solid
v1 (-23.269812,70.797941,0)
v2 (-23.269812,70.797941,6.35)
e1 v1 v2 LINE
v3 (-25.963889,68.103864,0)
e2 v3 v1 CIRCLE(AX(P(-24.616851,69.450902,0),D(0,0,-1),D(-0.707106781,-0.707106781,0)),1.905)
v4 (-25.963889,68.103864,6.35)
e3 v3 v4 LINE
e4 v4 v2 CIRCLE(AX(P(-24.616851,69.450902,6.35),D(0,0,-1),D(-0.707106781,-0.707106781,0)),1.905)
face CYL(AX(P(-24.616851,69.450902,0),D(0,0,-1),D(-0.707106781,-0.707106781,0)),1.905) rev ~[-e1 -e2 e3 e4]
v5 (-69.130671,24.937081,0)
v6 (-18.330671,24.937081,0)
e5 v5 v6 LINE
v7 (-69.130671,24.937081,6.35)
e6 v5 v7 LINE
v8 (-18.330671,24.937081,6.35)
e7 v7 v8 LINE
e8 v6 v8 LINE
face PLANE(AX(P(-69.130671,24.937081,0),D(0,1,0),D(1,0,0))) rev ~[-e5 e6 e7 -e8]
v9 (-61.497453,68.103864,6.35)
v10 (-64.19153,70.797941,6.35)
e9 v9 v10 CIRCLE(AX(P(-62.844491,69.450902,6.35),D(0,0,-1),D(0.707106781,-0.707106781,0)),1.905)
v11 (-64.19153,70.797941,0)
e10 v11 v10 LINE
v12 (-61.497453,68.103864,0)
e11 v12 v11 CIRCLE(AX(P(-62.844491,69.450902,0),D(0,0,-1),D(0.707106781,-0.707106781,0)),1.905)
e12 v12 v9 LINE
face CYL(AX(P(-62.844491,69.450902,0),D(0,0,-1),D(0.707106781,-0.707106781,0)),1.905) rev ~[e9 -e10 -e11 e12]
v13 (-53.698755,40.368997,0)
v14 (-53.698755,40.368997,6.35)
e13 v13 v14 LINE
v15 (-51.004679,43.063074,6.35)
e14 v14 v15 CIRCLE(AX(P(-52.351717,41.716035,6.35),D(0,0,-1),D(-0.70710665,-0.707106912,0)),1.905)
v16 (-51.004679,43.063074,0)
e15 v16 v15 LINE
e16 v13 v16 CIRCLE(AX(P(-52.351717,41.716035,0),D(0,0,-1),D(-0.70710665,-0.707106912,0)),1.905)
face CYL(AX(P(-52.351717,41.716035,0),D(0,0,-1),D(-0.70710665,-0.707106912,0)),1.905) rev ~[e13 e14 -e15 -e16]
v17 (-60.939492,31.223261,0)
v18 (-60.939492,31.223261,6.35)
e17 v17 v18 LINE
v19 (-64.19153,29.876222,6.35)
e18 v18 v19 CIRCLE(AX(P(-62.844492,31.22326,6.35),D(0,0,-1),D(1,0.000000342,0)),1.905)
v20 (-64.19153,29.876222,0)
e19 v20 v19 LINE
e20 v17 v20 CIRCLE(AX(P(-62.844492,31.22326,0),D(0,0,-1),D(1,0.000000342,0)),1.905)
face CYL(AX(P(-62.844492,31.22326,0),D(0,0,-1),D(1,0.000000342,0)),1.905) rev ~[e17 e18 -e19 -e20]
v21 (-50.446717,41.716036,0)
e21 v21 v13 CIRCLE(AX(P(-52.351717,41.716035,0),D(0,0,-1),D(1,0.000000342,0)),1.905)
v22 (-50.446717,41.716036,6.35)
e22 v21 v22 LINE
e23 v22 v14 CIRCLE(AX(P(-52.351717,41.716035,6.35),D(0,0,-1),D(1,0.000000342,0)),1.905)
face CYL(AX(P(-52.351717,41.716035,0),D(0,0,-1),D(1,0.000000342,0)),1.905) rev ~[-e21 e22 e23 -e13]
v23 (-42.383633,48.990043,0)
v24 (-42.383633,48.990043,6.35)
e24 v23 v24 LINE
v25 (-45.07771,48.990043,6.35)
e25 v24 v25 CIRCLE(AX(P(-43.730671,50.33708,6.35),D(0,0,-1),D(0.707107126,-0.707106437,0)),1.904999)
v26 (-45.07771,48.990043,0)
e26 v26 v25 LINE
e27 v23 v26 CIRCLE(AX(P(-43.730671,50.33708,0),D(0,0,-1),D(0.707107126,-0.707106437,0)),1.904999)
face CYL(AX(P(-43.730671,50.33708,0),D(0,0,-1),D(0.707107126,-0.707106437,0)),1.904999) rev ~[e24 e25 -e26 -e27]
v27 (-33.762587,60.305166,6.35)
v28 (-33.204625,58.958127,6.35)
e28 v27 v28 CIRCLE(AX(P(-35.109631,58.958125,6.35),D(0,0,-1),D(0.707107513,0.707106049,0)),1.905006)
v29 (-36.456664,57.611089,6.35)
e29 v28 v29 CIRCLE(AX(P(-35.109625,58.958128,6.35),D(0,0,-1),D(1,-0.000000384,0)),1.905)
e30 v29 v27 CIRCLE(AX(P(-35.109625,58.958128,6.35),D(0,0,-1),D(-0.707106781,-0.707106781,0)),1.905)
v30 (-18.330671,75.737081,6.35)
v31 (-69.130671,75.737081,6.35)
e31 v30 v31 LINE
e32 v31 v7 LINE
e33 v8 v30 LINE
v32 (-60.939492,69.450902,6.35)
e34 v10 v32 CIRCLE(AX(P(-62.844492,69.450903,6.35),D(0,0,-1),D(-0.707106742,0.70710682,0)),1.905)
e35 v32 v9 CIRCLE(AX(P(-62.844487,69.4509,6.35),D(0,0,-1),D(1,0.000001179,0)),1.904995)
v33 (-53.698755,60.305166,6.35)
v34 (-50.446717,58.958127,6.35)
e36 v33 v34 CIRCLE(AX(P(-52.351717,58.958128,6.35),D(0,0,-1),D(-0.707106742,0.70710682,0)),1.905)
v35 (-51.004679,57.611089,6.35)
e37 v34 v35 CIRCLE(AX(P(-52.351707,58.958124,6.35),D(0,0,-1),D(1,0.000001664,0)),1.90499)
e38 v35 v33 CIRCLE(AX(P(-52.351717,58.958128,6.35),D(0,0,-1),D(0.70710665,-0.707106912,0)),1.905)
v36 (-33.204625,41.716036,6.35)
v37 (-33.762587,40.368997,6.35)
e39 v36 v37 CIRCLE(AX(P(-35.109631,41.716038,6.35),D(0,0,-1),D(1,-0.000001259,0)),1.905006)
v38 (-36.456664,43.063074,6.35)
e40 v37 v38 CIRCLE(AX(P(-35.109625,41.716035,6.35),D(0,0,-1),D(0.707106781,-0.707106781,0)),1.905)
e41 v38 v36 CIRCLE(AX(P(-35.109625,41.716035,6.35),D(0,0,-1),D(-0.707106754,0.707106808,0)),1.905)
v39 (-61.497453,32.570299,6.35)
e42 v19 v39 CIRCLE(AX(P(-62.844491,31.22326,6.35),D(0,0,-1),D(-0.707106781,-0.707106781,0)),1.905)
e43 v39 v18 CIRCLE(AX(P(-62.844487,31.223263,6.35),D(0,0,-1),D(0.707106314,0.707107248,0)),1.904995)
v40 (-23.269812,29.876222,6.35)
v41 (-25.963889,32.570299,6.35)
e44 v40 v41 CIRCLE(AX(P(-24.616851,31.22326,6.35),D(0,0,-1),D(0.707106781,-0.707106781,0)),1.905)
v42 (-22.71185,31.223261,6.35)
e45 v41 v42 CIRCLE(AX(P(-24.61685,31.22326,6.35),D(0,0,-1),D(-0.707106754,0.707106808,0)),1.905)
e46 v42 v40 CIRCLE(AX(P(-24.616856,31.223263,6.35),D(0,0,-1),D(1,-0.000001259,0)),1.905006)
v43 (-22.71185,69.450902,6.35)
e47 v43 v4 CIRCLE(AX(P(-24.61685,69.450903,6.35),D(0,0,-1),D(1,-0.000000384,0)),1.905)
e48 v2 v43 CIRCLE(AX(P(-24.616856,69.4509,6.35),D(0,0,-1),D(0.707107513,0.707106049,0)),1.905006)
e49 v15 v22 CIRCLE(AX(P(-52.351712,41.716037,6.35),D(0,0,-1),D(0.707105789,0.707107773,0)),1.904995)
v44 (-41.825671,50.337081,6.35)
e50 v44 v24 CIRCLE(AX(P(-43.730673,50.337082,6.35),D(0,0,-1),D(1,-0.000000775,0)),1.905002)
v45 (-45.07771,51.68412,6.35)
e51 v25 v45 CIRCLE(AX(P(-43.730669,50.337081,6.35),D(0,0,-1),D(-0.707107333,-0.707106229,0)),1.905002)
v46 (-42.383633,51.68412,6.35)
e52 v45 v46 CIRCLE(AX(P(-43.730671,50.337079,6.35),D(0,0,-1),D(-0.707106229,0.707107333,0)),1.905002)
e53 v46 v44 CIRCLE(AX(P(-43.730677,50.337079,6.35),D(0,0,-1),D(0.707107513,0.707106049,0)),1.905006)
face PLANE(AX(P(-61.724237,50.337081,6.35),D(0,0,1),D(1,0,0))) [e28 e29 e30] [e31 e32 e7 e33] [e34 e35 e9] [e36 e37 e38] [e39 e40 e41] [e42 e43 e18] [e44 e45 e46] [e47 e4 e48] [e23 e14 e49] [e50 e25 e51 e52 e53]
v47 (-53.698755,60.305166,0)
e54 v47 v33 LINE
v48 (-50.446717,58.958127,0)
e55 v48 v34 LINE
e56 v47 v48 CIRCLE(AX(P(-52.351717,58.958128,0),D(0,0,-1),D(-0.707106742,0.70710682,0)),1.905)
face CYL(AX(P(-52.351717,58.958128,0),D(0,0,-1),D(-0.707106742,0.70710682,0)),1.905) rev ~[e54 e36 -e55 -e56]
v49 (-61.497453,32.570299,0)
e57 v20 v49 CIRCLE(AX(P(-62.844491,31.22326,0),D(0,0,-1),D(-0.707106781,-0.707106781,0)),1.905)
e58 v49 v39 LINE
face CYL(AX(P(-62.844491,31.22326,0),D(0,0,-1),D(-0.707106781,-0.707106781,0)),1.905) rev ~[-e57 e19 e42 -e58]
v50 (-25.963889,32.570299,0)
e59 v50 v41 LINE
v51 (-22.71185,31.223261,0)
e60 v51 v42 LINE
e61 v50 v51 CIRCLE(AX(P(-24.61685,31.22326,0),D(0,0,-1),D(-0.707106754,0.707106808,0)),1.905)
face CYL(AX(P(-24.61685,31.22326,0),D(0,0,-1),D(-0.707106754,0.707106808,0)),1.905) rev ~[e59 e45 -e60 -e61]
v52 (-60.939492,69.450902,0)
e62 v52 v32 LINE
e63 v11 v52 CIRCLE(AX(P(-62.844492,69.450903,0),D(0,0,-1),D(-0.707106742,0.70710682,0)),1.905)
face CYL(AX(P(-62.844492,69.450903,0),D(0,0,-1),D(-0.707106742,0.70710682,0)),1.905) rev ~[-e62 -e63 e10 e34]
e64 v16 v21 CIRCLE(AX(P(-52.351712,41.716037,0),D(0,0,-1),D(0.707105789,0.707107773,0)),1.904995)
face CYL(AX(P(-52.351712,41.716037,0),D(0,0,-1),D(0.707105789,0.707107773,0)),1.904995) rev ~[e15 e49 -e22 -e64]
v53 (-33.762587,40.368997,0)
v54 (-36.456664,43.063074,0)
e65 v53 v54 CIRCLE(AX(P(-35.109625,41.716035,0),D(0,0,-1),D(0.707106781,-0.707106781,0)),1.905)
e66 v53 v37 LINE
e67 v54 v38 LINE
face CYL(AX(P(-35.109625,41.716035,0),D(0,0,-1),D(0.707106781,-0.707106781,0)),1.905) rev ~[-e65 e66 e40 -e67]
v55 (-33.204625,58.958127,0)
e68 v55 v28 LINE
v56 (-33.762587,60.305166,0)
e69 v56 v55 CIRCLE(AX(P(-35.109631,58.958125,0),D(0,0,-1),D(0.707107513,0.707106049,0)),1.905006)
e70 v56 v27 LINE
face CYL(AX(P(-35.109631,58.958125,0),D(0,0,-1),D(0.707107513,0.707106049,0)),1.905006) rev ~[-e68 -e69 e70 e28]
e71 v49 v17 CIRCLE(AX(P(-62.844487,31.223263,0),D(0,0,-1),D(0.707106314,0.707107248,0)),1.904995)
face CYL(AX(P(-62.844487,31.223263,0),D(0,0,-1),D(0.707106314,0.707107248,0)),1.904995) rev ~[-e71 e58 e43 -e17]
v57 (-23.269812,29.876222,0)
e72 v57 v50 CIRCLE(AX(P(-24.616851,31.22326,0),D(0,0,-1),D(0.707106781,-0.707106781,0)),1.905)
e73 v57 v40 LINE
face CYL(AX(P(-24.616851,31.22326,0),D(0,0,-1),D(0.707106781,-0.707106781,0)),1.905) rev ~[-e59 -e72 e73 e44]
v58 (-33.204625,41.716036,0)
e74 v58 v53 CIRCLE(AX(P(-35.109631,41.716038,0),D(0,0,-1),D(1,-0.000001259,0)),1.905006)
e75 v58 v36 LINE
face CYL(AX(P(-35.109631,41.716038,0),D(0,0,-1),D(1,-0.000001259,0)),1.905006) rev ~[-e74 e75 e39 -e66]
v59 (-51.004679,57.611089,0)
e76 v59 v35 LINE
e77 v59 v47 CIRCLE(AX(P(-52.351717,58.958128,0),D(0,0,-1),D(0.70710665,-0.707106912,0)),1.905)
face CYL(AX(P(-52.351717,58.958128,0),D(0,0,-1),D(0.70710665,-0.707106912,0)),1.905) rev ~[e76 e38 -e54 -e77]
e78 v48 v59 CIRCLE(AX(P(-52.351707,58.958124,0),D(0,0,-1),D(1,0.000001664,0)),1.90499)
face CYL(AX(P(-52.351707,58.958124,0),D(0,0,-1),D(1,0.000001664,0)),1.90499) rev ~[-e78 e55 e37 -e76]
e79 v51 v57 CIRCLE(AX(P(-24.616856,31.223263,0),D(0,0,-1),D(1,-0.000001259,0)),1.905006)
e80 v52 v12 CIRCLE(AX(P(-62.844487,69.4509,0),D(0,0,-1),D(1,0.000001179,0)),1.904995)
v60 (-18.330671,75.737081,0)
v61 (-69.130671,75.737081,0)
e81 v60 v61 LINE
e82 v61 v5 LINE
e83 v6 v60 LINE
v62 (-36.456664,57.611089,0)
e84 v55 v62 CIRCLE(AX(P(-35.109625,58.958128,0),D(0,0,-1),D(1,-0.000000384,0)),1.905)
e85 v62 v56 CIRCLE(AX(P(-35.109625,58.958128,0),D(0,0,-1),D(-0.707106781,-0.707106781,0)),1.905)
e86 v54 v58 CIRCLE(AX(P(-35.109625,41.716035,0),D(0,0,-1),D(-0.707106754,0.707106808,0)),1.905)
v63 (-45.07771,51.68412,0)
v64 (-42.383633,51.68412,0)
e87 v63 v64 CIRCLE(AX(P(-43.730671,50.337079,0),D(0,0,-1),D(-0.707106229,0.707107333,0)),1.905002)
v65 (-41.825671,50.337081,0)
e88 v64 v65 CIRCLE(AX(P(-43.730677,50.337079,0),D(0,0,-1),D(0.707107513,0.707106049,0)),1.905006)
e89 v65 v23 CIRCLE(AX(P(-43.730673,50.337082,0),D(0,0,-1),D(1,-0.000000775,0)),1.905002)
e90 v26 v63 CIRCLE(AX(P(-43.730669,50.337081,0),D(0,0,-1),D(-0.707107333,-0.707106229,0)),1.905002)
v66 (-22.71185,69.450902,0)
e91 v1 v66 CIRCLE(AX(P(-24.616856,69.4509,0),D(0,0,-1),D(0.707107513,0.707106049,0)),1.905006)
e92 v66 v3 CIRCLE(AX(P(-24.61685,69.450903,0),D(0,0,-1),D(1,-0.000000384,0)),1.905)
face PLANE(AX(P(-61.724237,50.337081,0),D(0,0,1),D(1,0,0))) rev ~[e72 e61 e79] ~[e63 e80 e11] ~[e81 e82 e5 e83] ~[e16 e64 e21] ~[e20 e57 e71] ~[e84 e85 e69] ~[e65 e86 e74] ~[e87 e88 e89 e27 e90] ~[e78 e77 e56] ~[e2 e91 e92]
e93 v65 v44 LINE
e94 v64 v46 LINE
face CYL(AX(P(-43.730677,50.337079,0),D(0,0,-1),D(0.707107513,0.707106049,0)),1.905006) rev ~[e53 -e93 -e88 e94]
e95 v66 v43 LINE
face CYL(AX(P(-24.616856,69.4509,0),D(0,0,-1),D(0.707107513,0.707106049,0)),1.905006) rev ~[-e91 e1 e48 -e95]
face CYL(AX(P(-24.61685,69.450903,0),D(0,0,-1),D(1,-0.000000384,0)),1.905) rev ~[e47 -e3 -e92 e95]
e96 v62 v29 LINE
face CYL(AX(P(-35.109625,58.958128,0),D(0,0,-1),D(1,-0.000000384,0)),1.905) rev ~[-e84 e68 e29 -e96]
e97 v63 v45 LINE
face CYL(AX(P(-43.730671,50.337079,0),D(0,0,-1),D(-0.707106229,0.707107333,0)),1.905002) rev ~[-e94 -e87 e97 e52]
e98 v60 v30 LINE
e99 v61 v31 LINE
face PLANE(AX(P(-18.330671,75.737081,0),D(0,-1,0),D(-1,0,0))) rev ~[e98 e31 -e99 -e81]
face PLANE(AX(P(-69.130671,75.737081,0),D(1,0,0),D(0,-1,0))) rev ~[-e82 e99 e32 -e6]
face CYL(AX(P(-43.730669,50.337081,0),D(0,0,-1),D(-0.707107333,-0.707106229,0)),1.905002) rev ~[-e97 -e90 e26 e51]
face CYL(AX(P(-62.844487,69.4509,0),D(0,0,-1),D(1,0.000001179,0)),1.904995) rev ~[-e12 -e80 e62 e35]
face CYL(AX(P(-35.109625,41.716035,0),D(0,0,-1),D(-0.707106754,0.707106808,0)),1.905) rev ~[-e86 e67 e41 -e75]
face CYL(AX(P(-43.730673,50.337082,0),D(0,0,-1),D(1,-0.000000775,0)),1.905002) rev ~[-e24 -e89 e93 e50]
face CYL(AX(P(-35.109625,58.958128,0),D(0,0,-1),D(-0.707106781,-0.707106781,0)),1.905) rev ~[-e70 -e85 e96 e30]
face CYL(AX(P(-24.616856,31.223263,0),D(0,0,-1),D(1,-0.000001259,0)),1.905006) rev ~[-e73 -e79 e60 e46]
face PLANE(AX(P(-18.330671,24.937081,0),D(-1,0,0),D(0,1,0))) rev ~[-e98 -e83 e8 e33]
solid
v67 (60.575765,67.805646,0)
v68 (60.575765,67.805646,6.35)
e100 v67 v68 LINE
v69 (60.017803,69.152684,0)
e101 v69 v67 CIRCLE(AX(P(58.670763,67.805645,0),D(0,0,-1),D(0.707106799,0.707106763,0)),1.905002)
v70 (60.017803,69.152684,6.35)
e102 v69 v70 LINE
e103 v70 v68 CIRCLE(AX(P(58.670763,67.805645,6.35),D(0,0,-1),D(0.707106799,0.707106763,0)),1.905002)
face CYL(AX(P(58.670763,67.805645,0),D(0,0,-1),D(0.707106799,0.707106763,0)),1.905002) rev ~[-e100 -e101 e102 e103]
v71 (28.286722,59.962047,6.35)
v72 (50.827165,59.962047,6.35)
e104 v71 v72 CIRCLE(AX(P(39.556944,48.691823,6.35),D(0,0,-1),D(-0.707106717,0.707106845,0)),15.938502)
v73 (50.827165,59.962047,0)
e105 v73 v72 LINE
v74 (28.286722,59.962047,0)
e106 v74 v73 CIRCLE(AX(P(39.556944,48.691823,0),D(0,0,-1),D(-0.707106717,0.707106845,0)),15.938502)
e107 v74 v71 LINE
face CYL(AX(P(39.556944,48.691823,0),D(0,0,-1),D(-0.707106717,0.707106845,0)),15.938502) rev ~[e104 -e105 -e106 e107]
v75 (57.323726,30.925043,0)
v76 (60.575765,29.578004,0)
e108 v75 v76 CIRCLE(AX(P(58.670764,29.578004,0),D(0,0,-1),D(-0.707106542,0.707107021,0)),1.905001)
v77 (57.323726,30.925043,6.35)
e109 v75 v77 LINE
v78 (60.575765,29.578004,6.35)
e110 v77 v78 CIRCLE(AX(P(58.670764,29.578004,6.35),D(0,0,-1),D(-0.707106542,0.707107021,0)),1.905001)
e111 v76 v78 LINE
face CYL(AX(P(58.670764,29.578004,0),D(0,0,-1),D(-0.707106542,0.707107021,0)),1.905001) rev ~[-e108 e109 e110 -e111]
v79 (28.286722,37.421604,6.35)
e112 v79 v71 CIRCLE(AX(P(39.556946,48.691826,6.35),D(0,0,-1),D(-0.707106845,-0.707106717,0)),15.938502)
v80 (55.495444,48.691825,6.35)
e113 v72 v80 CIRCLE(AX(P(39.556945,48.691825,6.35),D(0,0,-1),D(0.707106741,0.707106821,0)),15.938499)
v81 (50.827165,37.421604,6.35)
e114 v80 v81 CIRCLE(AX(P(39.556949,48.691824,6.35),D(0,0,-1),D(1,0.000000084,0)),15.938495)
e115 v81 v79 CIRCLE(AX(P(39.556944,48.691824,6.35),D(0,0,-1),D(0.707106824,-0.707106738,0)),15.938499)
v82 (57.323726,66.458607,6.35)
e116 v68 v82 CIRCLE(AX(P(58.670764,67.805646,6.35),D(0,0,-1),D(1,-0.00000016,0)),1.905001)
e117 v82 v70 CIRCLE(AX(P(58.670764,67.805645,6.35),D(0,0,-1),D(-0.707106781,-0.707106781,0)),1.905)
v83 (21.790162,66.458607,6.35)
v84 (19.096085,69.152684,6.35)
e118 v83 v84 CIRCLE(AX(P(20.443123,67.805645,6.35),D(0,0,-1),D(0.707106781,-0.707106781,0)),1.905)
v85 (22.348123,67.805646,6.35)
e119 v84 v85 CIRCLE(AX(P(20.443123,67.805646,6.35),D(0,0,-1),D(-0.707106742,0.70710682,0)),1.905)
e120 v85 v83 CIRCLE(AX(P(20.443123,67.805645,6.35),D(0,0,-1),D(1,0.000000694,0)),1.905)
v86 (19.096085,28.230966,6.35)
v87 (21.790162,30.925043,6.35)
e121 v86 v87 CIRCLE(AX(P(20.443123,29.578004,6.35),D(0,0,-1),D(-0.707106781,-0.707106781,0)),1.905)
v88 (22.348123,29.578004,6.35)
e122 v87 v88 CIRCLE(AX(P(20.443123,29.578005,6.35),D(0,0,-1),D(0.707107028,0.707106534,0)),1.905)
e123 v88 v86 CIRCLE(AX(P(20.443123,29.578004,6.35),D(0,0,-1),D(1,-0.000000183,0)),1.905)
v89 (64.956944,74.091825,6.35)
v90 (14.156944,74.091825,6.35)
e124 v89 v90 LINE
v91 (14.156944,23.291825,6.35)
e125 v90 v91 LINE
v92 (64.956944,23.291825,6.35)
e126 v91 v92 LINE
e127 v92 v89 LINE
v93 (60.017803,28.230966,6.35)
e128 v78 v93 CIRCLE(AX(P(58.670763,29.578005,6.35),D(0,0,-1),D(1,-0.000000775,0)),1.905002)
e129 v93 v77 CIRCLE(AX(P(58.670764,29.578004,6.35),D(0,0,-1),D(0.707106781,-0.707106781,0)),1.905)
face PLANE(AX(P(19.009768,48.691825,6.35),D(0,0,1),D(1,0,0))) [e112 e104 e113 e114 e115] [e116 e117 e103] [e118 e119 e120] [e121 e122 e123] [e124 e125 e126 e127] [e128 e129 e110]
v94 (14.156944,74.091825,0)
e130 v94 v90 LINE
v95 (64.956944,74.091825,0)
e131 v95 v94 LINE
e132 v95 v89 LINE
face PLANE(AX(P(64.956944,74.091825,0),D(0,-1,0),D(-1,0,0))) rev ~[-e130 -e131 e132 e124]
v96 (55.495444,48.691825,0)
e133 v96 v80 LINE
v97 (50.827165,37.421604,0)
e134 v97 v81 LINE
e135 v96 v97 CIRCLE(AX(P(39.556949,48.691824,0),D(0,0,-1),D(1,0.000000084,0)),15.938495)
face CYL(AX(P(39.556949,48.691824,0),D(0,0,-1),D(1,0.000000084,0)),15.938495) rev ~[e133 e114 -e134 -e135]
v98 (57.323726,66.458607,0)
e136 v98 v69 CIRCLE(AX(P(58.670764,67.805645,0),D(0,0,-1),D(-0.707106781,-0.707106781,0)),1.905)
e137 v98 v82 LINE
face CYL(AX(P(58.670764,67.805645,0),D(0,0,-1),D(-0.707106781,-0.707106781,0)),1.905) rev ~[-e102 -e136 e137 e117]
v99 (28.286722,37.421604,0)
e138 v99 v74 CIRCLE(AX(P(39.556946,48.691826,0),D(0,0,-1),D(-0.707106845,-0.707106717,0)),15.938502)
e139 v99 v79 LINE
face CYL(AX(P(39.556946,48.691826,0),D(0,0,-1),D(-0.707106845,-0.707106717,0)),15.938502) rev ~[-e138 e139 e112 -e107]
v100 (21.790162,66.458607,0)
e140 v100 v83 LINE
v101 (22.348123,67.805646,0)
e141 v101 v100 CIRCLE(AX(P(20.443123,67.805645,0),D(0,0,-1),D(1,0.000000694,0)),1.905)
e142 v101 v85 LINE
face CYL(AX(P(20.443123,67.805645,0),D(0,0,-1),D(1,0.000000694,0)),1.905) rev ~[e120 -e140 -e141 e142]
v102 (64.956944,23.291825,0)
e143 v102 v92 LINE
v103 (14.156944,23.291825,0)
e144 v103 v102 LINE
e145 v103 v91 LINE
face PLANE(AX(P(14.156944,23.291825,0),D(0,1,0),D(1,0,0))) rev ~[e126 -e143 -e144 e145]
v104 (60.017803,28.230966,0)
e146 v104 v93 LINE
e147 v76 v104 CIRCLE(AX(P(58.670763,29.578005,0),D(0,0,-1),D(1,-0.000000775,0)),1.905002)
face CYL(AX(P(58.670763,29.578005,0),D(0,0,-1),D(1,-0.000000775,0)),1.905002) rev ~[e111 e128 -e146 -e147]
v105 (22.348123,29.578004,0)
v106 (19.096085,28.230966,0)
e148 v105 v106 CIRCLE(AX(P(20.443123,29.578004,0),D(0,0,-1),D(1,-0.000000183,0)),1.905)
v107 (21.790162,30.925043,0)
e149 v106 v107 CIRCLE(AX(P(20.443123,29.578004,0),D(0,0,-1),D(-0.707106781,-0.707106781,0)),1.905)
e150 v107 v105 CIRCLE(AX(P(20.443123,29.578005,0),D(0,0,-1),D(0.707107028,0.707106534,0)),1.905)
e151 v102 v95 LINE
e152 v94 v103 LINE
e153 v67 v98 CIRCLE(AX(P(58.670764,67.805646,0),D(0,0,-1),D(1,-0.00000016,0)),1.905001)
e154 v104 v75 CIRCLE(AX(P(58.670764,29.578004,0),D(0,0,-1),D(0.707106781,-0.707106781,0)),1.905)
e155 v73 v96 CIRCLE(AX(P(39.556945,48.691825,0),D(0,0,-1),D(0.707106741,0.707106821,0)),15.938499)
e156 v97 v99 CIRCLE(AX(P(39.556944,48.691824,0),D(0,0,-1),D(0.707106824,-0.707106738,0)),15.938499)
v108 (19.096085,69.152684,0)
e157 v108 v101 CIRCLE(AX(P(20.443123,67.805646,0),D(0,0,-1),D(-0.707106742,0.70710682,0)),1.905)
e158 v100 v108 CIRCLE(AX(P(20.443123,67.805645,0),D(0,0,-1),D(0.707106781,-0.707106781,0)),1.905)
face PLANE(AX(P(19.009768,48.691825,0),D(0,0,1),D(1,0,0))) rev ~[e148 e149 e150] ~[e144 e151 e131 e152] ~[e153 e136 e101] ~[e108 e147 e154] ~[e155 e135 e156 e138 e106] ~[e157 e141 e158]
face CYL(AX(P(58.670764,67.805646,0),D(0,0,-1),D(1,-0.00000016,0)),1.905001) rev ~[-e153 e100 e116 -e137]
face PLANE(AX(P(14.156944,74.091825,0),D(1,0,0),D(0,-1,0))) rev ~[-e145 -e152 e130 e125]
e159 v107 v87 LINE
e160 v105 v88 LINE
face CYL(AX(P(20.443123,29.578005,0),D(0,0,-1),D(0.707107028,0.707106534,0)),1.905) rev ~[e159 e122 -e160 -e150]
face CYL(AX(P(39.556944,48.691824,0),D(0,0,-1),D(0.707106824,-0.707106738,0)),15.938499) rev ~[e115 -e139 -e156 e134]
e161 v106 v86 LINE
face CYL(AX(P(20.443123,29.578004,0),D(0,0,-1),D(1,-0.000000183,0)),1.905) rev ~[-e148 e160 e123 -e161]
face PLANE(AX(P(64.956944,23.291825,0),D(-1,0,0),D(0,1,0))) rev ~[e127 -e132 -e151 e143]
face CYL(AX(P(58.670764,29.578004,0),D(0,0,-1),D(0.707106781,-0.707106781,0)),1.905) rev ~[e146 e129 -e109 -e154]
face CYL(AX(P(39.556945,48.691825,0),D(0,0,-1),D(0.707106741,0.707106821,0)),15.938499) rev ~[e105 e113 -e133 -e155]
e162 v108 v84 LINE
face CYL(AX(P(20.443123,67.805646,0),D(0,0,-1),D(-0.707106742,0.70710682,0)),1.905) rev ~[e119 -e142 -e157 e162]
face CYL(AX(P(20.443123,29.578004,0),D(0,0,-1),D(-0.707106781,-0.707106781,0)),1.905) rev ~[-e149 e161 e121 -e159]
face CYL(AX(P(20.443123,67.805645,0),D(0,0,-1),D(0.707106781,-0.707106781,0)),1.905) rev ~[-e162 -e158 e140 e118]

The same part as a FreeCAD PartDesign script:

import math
import FreeCAD as App
import Part
import Sketcher
Q = App.Units.Quantity

doc = App.newDocument("Part")
params = doc.addObject("Spreadsheet::Sheet", "Params")
for row, (alias, value) in enumerate([
    ("sketch1_width", "2 in"),
    ("sketch1_radius", "0.075 in"),
    ("pad1_length", "0.25 in"),
    ("sketch2_width", "2 in"),
    ("sketch2_radius", "0.075 in"),
    ("pad2_length", "0.25 in"),
], start=1):
    params.set(f"A{row}", alias)
    params.set(f"B{row}", "=" + value)
    params.setAlias(f"B{row}", alias)

body = doc.addObject("PartDesign::Body", "Body")

# Sketch on XY plane
sketch1 = doc.addObject("Sketcher::SketchObject", "Sketch")
body.addObject(sketch1)
sketch1.AttachmentSupport = (doc.XY_Plane, [""])
sketch1.MapMode = "FlatFace"
sketch1.addGeometry(Part.LineSegment(App.Vector(-69.130671, 75.737081, 0), App.Vector(-69.130671, 24.937081, 0)), False)
sketch1.addGeometry(Part.LineSegment(App.Vector(-69.130671, 24.937081, 0), App.Vector(-18.330671, 24.937081, 0)), False)
sketch1.addGeometry(Part.LineSegment(App.Vector(-18.330671, 24.937081, 0), App.Vector(-18.330671, 75.737081, 0)), False)
sketch1.addGeometry(Part.LineSegment(App.Vector(-18.330671, 75.737081, 0), App.Vector(-69.130671, 75.737081, 0)), False)
sketch1.addGeometry(Part.ArcOfCircle(Part.Circle(App.Vector(-62.844491, 31.22326, 0), App.Vector(0, 0, 1), 1.905), math.radians(45), math.radians(225)), False)
sketch1.addGeometry(Part.ArcOfCircle(Part.Circle(App.Vector(-62.844487, 31.223263, 0), App.Vector(0, 0, 1), 1.904995), math.radians(-0.000068), math.radians(45.000038)), False)
sketch1.addGeometry(Part.ArcOfCircle(Part.Circle(App.Vector(-62.844492, 31.22326, 0), App.Vector(0, 0, 1), 1.905), math.radians(-134.999997), math.radians(0.00002)), False)
sketch1.addGeometry(Part.ArcOfCircle(Part.Circle(App.Vector(-52.351717, 41.716035, 0), App.Vector(0, 0, 1), 1.905), math.radians(45.000011), math.radians(225.000011)), False)
sketch1.addGeometry(Part.ArcOfCircle(Part.Circle(App.Vector(-52.351712, 41.716037, 0), App.Vector(0, 0, 1), 1.904995), math.radians(-0.000037), math.radians(45.00008)), False)
sketch1.addGeometry(Part.ArcOfCircle(Part.Circle(App.Vector(-52.351717, 41.716035, 0), App.Vector(0, 0, 1), 1.905), math.radians(-134.999997), math.radians(0.00002)), False)
sketch1.addGeometry(Part.ArcOfCircle(Part.Circle(App.Vector(-43.730669, 50.337081, 0), App.Vector(0, 0, 1), 1.905002), math.radians(135.000045), math.radians(224.999955)), False)
sketch1.addGeometry(Part.ArcOfCircle(Part.Circle(App.Vector(-43.730671, 50.337079, 0), App.Vector(0, 0, 1), 1.905002), math.radians(45.000045), math.radians(134.999955)), False)
sketch1.addGeometry(Part.ArcOfCircle(Part.Circle(App.Vector(-43.730677, 50.337079, 0), App.Vector(0, 0, 1), 1.905006), math.radians(0.000072), math.radians(44.999941)), False)
sketch1.addGeometry(Part.ArcOfCircle(Part.Circle(App.Vector(-43.730673, 50.337082, 0), App.Vector(0, 0, 1), 1.905002), math.radians(-44.999999), math.radians(-0.000044)), False)
sketch1.addGeometry(Part.ArcOfCircle(Part.Circle(App.Vector(-43.730671, 50.33708, 0), App.Vector(0, 0, 1), 1.904999), math.radians(-135.000028), math.radians(-44.999972)), False)
sketch1.addGeometry(Part.ArcOfCircle(Part.Circle(App.Vector(-35.109625, 41.716035, 0), App.Vector(0, 0, 1), 1.905), math.radians(0.000022), math.radians(134.999998)), False)
sketch1.addGeometry(Part.ArcOfCircle(Part.Circle(App.Vector(-35.109631, 41.716038, 0), App.Vector(0, 0, 1), 1.905006), math.radians(-44.999941), math.radians(-0.000072)), False)
sketch1.addGeometry(Part.ArcOfCircle(Part.Circle(App.Vector(-35.109625, 41.716035, 0), App.Vector(0, 0, 1), 1.905), math.radians(135), math.radians(315)), False)
sketch1.addGeometry(Part.ArcOfCircle(Part.Circle(App.Vector(-24.61685, 31.22326, 0), App.Vector(0, 0, 1), 1.905), math.radians(0.000022), math.radians(134.999998)), False)
sketch1.addGeometry(Part.ArcOfCircle(Part.Circle(App.Vector(-24.616856, 31.223263, 0), App.Vector(0, 0, 1), 1.905006), math.radians(-44.999941), math.radians(-0.000072)), False)
sketch1.addGeometry(Part.ArcOfCircle(Part.Circle(App.Vector(-24.616851, 31.22326, 0), App.Vector(0, 0, 1), 1.905), math.radians(135), math.radians(315)), False)
sketch1.addGeometry(Part.ArcOfCircle(Part.Circle(App.Vector(-35.109625, 58.958128, 0), App.Vector(0, 0, 1), 1.905), math.radians(45), math.radians(225)), False)
sketch1.addGeometry(Part.ArcOfCircle(Part.Circle(App.Vector(-35.109631, 58.958125, 0), App.Vector(0, 0, 1), 1.905006), math.radians(0.000072), math.radians(44.999941)), False)
sketch1.addGeometry(Part.ArcOfCircle(Part.Circle(App.Vector(-35.109625, 58.958128, 0), App.Vector(0, 0, 1), 1.905), math.radians(-134.999998), math.radians(-0.000022)), False)
sketch1.addGeometry(Part.ArcOfCircle(Part.Circle(App.Vector(-24.616851, 69.450902, 0), App.Vector(0, 0, 1), 1.905), math.radians(45), math.radians(225)), False)
sketch1.addGeometry(Part.ArcOfCircle(Part.Circle(App.Vector(-24.616856, 69.4509, 0), App.Vector(0, 0, 1), 1.905006), math.radians(0.000072), math.radians(44.999941)), False)
sketch1.addGeometry(Part.ArcOfCircle(Part.Circle(App.Vector(-24.61685, 69.450903, 0), App.Vector(0, 0, 1), 1.905), math.radians(-134.999998), math.radians(-0.000022)), False)
sketch1.addGeometry(Part.ArcOfCircle(Part.Circle(App.Vector(-52.351717, 58.958128, 0), App.Vector(0, 0, 1), 1.905), math.radians(134.999989), math.radians(314.999989)), False)
sketch1.addGeometry(Part.ArcOfCircle(Part.Circle(App.Vector(-52.351717, 58.958128, 0), App.Vector(0, 0, 1), 1.905), math.radians(-0.00002), math.radians(134.999997)), False)
sketch1.addGeometry(Part.ArcOfCircle(Part.Circle(App.Vector(-52.351707, 58.958124, 0), App.Vector(0, 0, 1), 1.90499), math.radians(-45.000138), math.radians(0.000095)), False)
sketch1.addGeometry(Part.ArcOfCircle(Part.Circle(App.Vector(-62.844491, 69.450902, 0), App.Vector(0, 0, 1), 1.905), math.radians(135), math.radians(315)), False)
sketch1.addGeometry(Part.ArcOfCircle(Part.Circle(App.Vector(-62.844492, 69.450903, 0), App.Vector(0, 0, 1), 1.905), math.radians(-0.00002), math.radians(134.999997)), False)
sketch1.addGeometry(Part.ArcOfCircle(Part.Circle(App.Vector(-62.844487, 69.4509, 0), App.Vector(0, 0, 1), 1.904995), math.radians(-45.000038), math.radians(0.000068)), False)
sketch1.addConstraint(Sketcher.Constraint("Coincident", 0, 2, 1, 1))
sketch1.addConstraint(Sketcher.Constraint("Coincident", 1, 2, 2, 1))
sketch1.addConstraint(Sketcher.Constraint("Coincident", 2, 2, 3, 1))
sketch1.addConstraint(Sketcher.Constraint("Coincident", 3, 2, 0, 1))
sketch1.addConstraint(Sketcher.Constraint("Tangent", 4, 1, 5, 2))
sketch1.addConstraint(Sketcher.Constraint("Tangent", 5, 1, 6, 2))
sketch1.addConstraint(Sketcher.Constraint("Tangent", 6, 1, 4, 2))
sketch1.addConstraint(Sketcher.Constraint("Tangent", 7, 1, 8, 2))
sketch1.addConstraint(Sketcher.Constraint("Tangent", 8, 1, 9, 2))
sketch1.addConstraint(Sketcher.Constraint("Tangent", 9, 1, 7, 2))
sketch1.addConstraint(Sketcher.Constraint("Tangent", 10, 1, 11, 2))
sketch1.addConstraint(Sketcher.Constraint("Tangent", 11, 1, 12, 2))
sketch1.addConstraint(Sketcher.Constraint("Coincident", 12, 1, 13, 2))
sketch1.addConstraint(Sketcher.Constraint("Tangent", 13, 1, 14, 2))
sketch1.addConstraint(Sketcher.Constraint("Tangent", 14, 1, 10, 2))
sketch1.addConstraint(Sketcher.Constraint("Tangent", 15, 1, 16, 2))
sketch1.addConstraint(Sketcher.Constraint("Tangent", 16, 1, 17, 2))
sketch1.addConstraint(Sketcher.Constraint("Tangent", 17, 1, 15, 2))
sketch1.addConstraint(Sketcher.Constraint("Tangent", 18, 1, 19, 2))
sketch1.addConstraint(Sketcher.Constraint("Tangent", 19, 1, 20, 2))
sketch1.addConstraint(Sketcher.Constraint("Tangent", 20, 1, 18, 2))
sketch1.addConstraint(Sketcher.Constraint("Tangent", 21, 1, 22, 2))
sketch1.addConstraint(Sketcher.Constraint("Tangent", 22, 1, 23, 2))
sketch1.addConstraint(Sketcher.Constraint("Tangent", 23, 1, 21, 2))
sketch1.addConstraint(Sketcher.Constraint("Tangent", 24, 1, 25, 2))
sketch1.addConstraint(Sketcher.Constraint("Tangent", 25, 1, 26, 2))
sketch1.addConstraint(Sketcher.Constraint("Tangent", 26, 1, 24, 2))
sketch1.addConstraint(Sketcher.Constraint("Tangent", 27, 1, 28, 2))
sketch1.addConstraint(Sketcher.Constraint("Coincident", 28, 1, 29, 2))
sketch1.addConstraint(Sketcher.Constraint("Coincident", 29, 1, 27, 2))
sketch1.addConstraint(Sketcher.Constraint("Tangent", 30, 1, 31, 2))
sketch1.addConstraint(Sketcher.Constraint("Tangent", 31, 1, 32, 2))
sketch1.addConstraint(Sketcher.Constraint("Tangent", 32, 1, 30, 2))
sketch1.addConstraint(Sketcher.Constraint("Vertical", 0))
sketch1.addConstraint(Sketcher.Constraint("Horizontal", 1))
sketch1.addConstraint(Sketcher.Constraint("Vertical", 2))
sketch1.addConstraint(Sketcher.Constraint("Horizontal", 3))
sketch1.addConstraint(Sketcher.Constraint("Coincident", 12, 3, 10, 3))
sketch1.addConstraint(Sketcher.Constraint("Equal", 6, 7))
sketch1.addConstraint(Sketcher.Constraint("Equal", 9, 10))
sketch1.addConstraint(Sketcher.Constraint("Equal", 11, 13))
sketch1.addConstraint(Sketcher.Constraint("Equal", 14, 15))
sketch1.addConstraint(Sketcher.Constraint("Equal", 17, 18))
sketch1.addConstraint(Sketcher.Constraint("Equal", 20, 21))
sketch1.addConstraint(Sketcher.Constraint("Equal", 23, 24))
sketch1.addConstraint(Sketcher.Constraint("Equal", 26, 27))
sketch1.addConstraint(Sketcher.Constraint("Equal", 27, 28))
sketch1.addConstraint(Sketcher.Constraint("Equal", 28, 30))
sketch1.addConstraint(Sketcher.Constraint("Horizontal", 9, 3, 15, 3))
sketch1.addConstraint(Sketcher.Constraint("Horizontal", 6, 3, 18, 3))
sketch1.addConstraint(Sketcher.Constraint("Horizontal", 23, 3, 27, 3))
sketch1.addConstraint(Sketcher.Constraint("Horizontal", 22, 3, 29, 3))
sketch1.addConstraint(Sketcher.Constraint("Horizontal", 26, 3, 30, 3))
sketch1.addConstraint(Sketcher.Constraint("Horizontal", 20, 3, 5, 1))
sketch1.addConstraint(Sketcher.Constraint("Horizontal", 17, 3, 8, 1))
sketch1.addConstraint(Sketcher.Constraint("Horizontal", 10, 1, 11, 1))
sketch1.addConstraint(Sketcher.Constraint("Horizontal", 14, 3, 12, 1))
sketch1.addConstraint(Sketcher.Constraint("Horizontal", 13, 1, 14, 1))
sketch1.addConstraint(Sketcher.Constraint("Horizontal", 8, 1, 15, 1))
sketch1.addConstraint(Sketcher.Constraint("Horizontal", 9, 1, 16, 1))
sketch1.addConstraint(Sketcher.Constraint("Horizontal", 7, 1, 17, 1))
sketch1.addConstraint(Sketcher.Constraint("Horizontal", 5, 1, 18, 1))
sketch1.addConstraint(Sketcher.Constraint("Horizontal", 6, 1, 19, 1))
sketch1.addConstraint(Sketcher.Constraint("Horizontal", 4, 1, 20, 1))
sketch1.addConstraint(Sketcher.Constraint("Horizontal", 28, 3, 22, 1))
sketch1.addConstraint(Sketcher.Constraint("Horizontal", 31, 3, 25, 1))
sketch1.addConstraint(Sketcher.Constraint("Horizontal", 21, 1, 27, 1))
sketch1.addConstraint(Sketcher.Constraint("Horizontal", 22, 1, 28, 1))
sketch1.addConstraint(Sketcher.Constraint("Horizontal", 23, 1, 29, 1))
sketch1.addConstraint(Sketcher.Constraint("Horizontal", 24, 1, 30, 1))
sketch1.addConstraint(Sketcher.Constraint("Horizontal", 25, 1, 31, 1))
sketch1.addConstraint(Sketcher.Constraint("Horizontal", 26, 1, 32, 1))
sketch1.addConstraint(Sketcher.Constraint("Vertical", 17, 3, 21, 3))
sketch1.addConstraint(Sketcher.Constraint("Vertical", 20, 3, 24, 3))
sketch1.addConstraint(Sketcher.Constraint("Vertical", 9, 3, 27, 3))
sketch1.addConstraint(Sketcher.Constraint("Vertical", 6, 3, 30, 3))
sketch1.addConstraint(Sketcher.Constraint("Vertical", 11, 1, 13, 1))
sketch1.addConstraint(Sketcher.Constraint("Vertical", 16, 1, 21, 1))
sketch1.addConstraint(Sketcher.Constraint("Vertical", 17, 1, 23, 1))
sketch1.addConstraint(Sketcher.Constraint("Vertical", 19, 1, 24, 1))
sketch1.addConstraint(Sketcher.Constraint("Vertical", 20, 1, 26, 1))
sketch1.addConstraint(Sketcher.Constraint("Equal", 3, 0))
sketch1.addConstraint(Sketcher.Constraint("DistanceX", 1, 1, 1, 2, Q("2 in")))
sketch1.addConstraint(Sketcher.Constraint("Radius", 4, Q("0.075 in")))
sketch1.addConstraint(Sketcher.Constraint("DistanceY", -1, 1, 25, 3, 69.4509))
sketch1.addConstraint(Sketcher.Constraint("DistanceY", -1, 1, 4, 1, 32.570299))
sketch1.addConstraint(Sketcher.Constraint("DistanceX", 4, 3, -1, 1, 62.844491))
sketch1.addConstraint(Sketcher.Constraint("DistanceY", -1, 1, 4, 3, 31.22326))
sketch1.addConstraint(Sketcher.Constraint("DistanceX", 8, 3, -1, 1, 52.351712))
sketch1.addConstraint(Sketcher.Constraint("DistanceX", 10, 3, -1, 1, 43.730669))
sketch1.addConstraint(Sketcher.Constraint("DistanceY", -1, 1, 10, 3, 50.337081))
sketch1.addConstraint(Sketcher.Constraint("DistanceX", 16, 3, -1, 1, 35.109631))
sketch1.addConstraint(Sketcher.Constraint("DistanceY", -1, 1, 16, 3, 41.716038))
sketch1.addConstraint(Sketcher.Constraint("DistanceX", 18, 3, -1, 1, 24.61685))
sketch1.addConstraint(Sketcher.Constraint("DistanceX", 0, 2, -1, 1, 69.130671))
sketch1.addConstraint(Sketcher.Constraint("DistanceY", -1, 1, 0, 2, 24.937081))
sketch1.addConstraint(Sketcher.Constraint("DistanceX", 6, 1, -1, 1, 64.19153))
sketch1.addConstraint(Sketcher.Constraint("DistanceX", 7, 1, -1, 1, 51.004679))
sketch1.addConstraint(Sketcher.Constraint("DistanceX", 10, 1, -1, 1, 45.07771))
sketch1.addConstraint(Sketcher.Constraint("DistanceY", -1, 1, 23, 1, 57.611089))
sketch1.addConstraint(Sketcher.Constraint("DistanceX", 9, 1, -1, 1, 53.698755))
sketch1.setExpression("Constraints[82]", "Params.sketch1_width")
sketch1.setExpression("Constraints[83]", "Params.sketch1_radius")
pad1 = doc.addObject("PartDesign::Pad", "Pad")
body.addObject(pad1)
pad1.Profile = sketch1
pad1.setExpression("Length", "Params.pad1_length")
body2 = doc.addObject("PartDesign::Body", "Body001")

# Sketch on XY plane
sketch2 = doc.addObject("Sketcher::SketchObject", "Sketch001")
body2.addObject(sketch2)
sketch2.AttachmentSupport = (doc.getObject("XY_Plane001"), [""])
sketch2.MapMode = "FlatFace"
sketch2.addGeometry(Part.LineSegment(App.Vector(14.156944, 74.091825, 0), App.Vector(14.156944, 23.291825, 0)), False)
sketch2.addGeometry(Part.LineSegment(App.Vector(14.156944, 23.291825, 0), App.Vector(64.956944, 23.291825, 0)), False)
sketch2.addGeometry(Part.LineSegment(App.Vector(64.956944, 23.291825, 0), App.Vector(64.956944, 74.091825, 0)), False)
sketch2.addGeometry(Part.LineSegment(App.Vector(64.956944, 74.091825, 0), App.Vector(14.156944, 74.091825, 0)), False)
sketch2.addGeometry(Part.ArcOfCircle(Part.Circle(App.Vector(20.443123, 29.578004, 0), App.Vector(0, 0, 1), 1.905), math.radians(45), math.radians(225)), False)
sketch2.addGeometry(Part.ArcOfCircle(Part.Circle(App.Vector(20.443123, 29.578005, 0), App.Vector(0, 0, 1), 1.905), math.radians(-0.00004), math.radians(44.99998)), False)
sketch2.addGeometry(Part.ArcOfCircle(Part.Circle(App.Vector(20.443123, 29.578004, 0), App.Vector(0, 0, 1), 1.905), math.radians(-134.999997), math.radians(-0.00001)), False)
sketch2.addGeometry(Part.ArcOfCircle(Part.Circle(App.Vector(39.556946, 48.691826, 0), App.Vector(0, 0, 1), 15.938502), math.radians(135.000005), math.radians(224.999995)), False)
sketch2.addGeometry(Part.ArcOfCircle(Part.Circle(App.Vector(39.556944, 48.691823, 0), App.Vector(0, 0, 1), 15.938502), math.radians(45.000005), math.radians(134.999995)), False)
sketch2.addGeometry(Part.ArcOfCircle(Part.Circle(App.Vector(39.556945, 48.691825, 0), App.Vector(0, 0, 1), 15.938499), math.radians(-0.000002), math.radians(45.000003)), False)
sketch2.addGeometry(Part.ArcOfCircle(Part.Circle(App.Vector(39.556949, 48.691824, 0), App.Vector(0, 0, 1), 15.938495), math.radians(-45.00001), math.radians(0.000005)), False)
sketch2.addGeometry(Part.ArcOfCircle(Part.Circle(App.Vector(39.556944, 48.691824, 0), App.Vector(0, 0, 1), 15.938499), math.radians(-135.000004), math.radians(-44.999996)), False)
sketch2.addGeometry(Part.ArcOfCircle(Part.Circle(App.Vector(58.670764, 29.578004, 0), App.Vector(0, 0, 1), 1.905001), math.radians(0.000009), math.radians(134.999981)), False)
sketch2.addGeometry(Part.ArcOfCircle(Part.Circle(App.Vector(58.670763, 29.578005, 0), App.Vector(0, 0, 1), 1.905002), math.radians(-44.999999), math.radians(-0.000044)), False)
sketch2.addGeometry(Part.ArcOfCircle(Part.Circle(App.Vector(58.670764, 29.578004, 0), App.Vector(0, 0, 1), 1.905), math.radians(135), math.radians(315)), False)
sketch2.addGeometry(Part.ArcOfCircle(Part.Circle(App.Vector(58.670764, 67.805645, 0), App.Vector(0, 0, 1), 1.905), math.radians(45), math.radians(225)), False)
sketch2.addGeometry(Part.ArcOfCircle(Part.Circle(App.Vector(58.670763, 67.805645, 0), App.Vector(0, 0, 1), 1.905002), math.radians(0.000044), math.radians(44.999999)), False)
sketch2.addGeometry(Part.ArcOfCircle(Part.Circle(App.Vector(58.670764, 67.805646, 0), App.Vector(0, 0, 1), 1.905001), math.radians(-134.999981), math.radians(-0.000009)), False)
sketch2.addGeometry(Part.ArcOfCircle(Part.Circle(App.Vector(20.443123, 67.805645, 0), App.Vector(0, 0, 1), 1.905), math.radians(135), math.radians(315)), False)
sketch2.addGeometry(Part.ArcOfCircle(Part.Circle(App.Vector(20.443123, 67.805646, 0), App.Vector(0, 0, 1), 1.905), math.radians(0.00001), math.radians(134.999997)), False)
sketch2.addGeometry(Part.ArcOfCircle(Part.Circle(App.Vector(20.443123, 67.805645, 0), App.Vector(0, 0, 1), 1.905), math.radians(-44.99998), math.radians(0.00004)), False)
sketch2.addConstraint(Sketcher.Constraint("Coincident", 0, 2, 1, 1))
sketch2.addConstraint(Sketcher.Constraint("Coincident", 1, 2, 2, 1))
sketch2.addConstraint(Sketcher.Constraint("Coincident", 2, 2, 3, 1))
sketch2.addConstraint(Sketcher.Constraint("Coincident", 3, 2, 0, 1))
sketch2.addConstraint(Sketcher.Constraint("Tangent", 4, 1, 5, 2))
sketch2.addConstraint(Sketcher.Constraint("Tangent", 5, 1, 6, 2))
sketch2.addConstraint(Sketcher.Constraint("Tangent", 6, 1, 4, 2))
sketch2.addConstraint(Sketcher.Constraint("Tangent", 7, 1, 8, 2))
sketch2.addConstraint(Sketcher.Constraint("Tangent", 8, 1, 9, 2))
sketch2.addConstraint(Sketcher.Constraint("Tangent", 9, 1, 10, 2))
sketch2.addConstraint(Sketcher.Constraint("Tangent", 10, 1, 11, 2))
sketch2.addConstraint(Sketcher.Constraint("Tangent", 11, 1, 7, 2))
sketch2.addConstraint(Sketcher.Constraint("Tangent", 12, 1, 13, 2))
sketch2.addConstraint(Sketcher.Constraint("Tangent", 13, 1, 14, 2))
sketch2.addConstraint(Sketcher.Constraint("Tangent", 14, 1, 12, 2))
sketch2.addConstraint(Sketcher.Constraint("Tangent", 15, 1, 16, 2))
sketch2.addConstraint(Sketcher.Constraint("Tangent", 16, 1, 17, 2))
sketch2.addConstraint(Sketcher.Constraint("Tangent", 17, 1, 15, 2))
sketch2.addConstraint(Sketcher.Constraint("Tangent", 18, 1, 19, 2))
sketch2.addConstraint(Sketcher.Constraint("Tangent", 19, 1, 20, 2))
sketch2.addConstraint(Sketcher.Constraint("Tangent", 20, 1, 18, 2))
sketch2.addConstraint(Sketcher.Constraint("Vertical", 0))
sketch2.addConstraint(Sketcher.Constraint("Horizontal", 1))
sketch2.addConstraint(Sketcher.Constraint("Vertical", 2))
sketch2.addConstraint(Sketcher.Constraint("Horizontal", 3))
sketch2.addConstraint(Sketcher.Constraint("Coincident", 9, 3, 7, 3))
sketch2.addConstraint(Sketcher.Constraint("Equal", 6, 12))
sketch2.addConstraint(Sketcher.Constraint("Equal", 14, 15))
sketch2.addConstraint(Sketcher.Constraint("Equal", 17, 18))
sketch2.addConstraint(Sketcher.Constraint("Horizontal", 6, 3, 12, 3))
sketch2.addConstraint(Sketcher.Constraint("Horizontal", 17, 3, 18, 3))
sketch2.addConstraint(Sketcher.Constraint("Horizontal", 14, 3, 5, 1))
sketch2.addConstraint(Sketcher.Constraint("Horizontal", 7, 1, 8, 1))
sketch2.addConstraint(Sketcher.Constraint("Horizontal", 11, 3, 9, 1))
sketch2.addConstraint(Sketcher.Constraint("Horizontal", 10, 1, 11, 1))
sketch2.addConstraint(Sketcher.Constraint("Horizontal", 5, 1, 12, 1))
sketch2.addConstraint(Sketcher.Constraint("Horizontal", 6, 1, 13, 1))
sketch2.addConstraint(Sketcher.Constraint("Horizontal", 4, 1, 14, 1))
sketch2.addConstraint(Sketcher.Constraint("Horizontal", 20, 3, 16, 1))
sketch2.addConstraint(Sketcher.Constraint("Horizontal", 15, 1, 18, 1))
sketch2.addConstraint(Sketcher.Constraint("Horizontal", 16, 1, 19, 1))
sketch2.addConstraint(Sketcher.Constraint("Horizontal", 17, 1, 20, 1))
sketch2.addConstraint(Sketcher.Constraint("Vertical", 14, 3, 15, 3))
sketch2.addConstraint(Sketcher.Constraint("Vertical", 6, 3, 18, 3))
sketch2.addConstraint(Sketcher.Constraint("Vertical", 8, 1, 10, 1))
sketch2.addConstraint(Sketcher.Constraint("Vertical", 13, 1, 15, 1))
sketch2.addConstraint(Sketcher.Constraint("Vertical", 14, 1, 17, 1))
sketch2.addConstraint(Sketcher.Constraint("Equal", 3, 0))
sketch2.addConstraint(Sketcher.Constraint("DistanceX", 1, 1, 1, 2, Q("2 in")))
sketch2.addConstraint(Sketcher.Constraint("Radius", 4, Q("0.075 in")))
sketch2.addConstraint(Sketcher.Constraint("DistanceX", 0, 2, 8, 3, Q("1 in")))
sketch2.addConstraint(Sketcher.Constraint("DistanceY", 0, 2, 8, 3, Q("0.9999999 in")))
sketch2.addConstraint(Sketcher.Constraint("Radius", 7, Q("0.6275001 in")))
sketch2.addConstraint(Sketcher.Constraint("DistanceX", 20, 3, 7, 1, 7.843599))
sketch2.addConstraint(Sketcher.Constraint("DistanceY", 7, 1, 18, 3, 7.843598))
sketch2.addConstraint(Sketcher.Constraint("DistanceX", 8, 1, 16, 3, 7.843598))
sketch2.addConstraint(Sketcher.Constraint("DistanceY", 13, 3, 10, 1, 7.843599))
sketch2.addConstraint(Sketcher.Constraint("DistanceX", -1, 1, 10, 3, 39.556949))
sketch2.addConstraint(Sketcher.Constraint("DistanceX", -1, 1, 7, 1, 28.286722))
sketch2.addConstraint(Sketcher.Constraint("DistanceX", -1, 1, 20, 1, 21.790162))
sketch2.addConstraint(Sketcher.Constraint("DistanceX", 6, 1, 6, 3, 1.347038))
sketch2.addConstraint(Sketcher.Constraint("DistanceY", -1, 1, 4, 3, 29.578004))
sketch2.setExpression("Constraints[48]", "Params.sketch2_width")
sketch2.setExpression("Constraints[49]", "Params.sketch2_radius")
pad2 = doc.addObject("PartDesign::Pad", "Pad001")
body2.addObject(pad2)
pad2.Profile = sketch2
pad2.setExpression("Length", "Params.pad2_length")

doc.recompute()
